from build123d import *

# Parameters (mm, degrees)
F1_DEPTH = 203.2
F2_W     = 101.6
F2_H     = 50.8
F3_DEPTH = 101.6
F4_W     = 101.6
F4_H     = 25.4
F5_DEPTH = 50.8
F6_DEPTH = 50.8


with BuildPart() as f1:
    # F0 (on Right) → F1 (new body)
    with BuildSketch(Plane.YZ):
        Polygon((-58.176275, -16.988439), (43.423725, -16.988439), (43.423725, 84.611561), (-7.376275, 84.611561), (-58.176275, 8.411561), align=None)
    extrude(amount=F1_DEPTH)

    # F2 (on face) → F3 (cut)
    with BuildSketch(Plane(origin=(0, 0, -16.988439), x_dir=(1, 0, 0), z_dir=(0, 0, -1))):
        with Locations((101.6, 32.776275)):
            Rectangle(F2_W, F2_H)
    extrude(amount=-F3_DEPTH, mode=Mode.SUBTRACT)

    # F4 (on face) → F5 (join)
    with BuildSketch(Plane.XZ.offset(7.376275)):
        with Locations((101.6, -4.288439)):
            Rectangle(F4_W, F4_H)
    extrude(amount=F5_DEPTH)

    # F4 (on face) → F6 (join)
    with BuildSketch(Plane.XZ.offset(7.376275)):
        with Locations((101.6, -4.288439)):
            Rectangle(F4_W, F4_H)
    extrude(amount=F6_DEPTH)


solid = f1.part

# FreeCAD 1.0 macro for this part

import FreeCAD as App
import Part
import Sketcher
from FreeCAD import Vector
Q = App.Units.Quantity

doc = App.newDocument("Part")
params = doc.addObject("Spreadsheet::Sheet", "Params")
for row, (alias, value) in enumerate([
    ("sketch1_width", "4 in"),
    ("sketch1_width2", "2 in"),
    ("sketch1_height", "1 in"),
    ("pad1_length", "8 in"),
    ("sketch2_width", "4 in"),
    ("sketch2_height", "2 in"),
    ("pocket1_length", "4 in"),
    ("sketch3_width", "4 in"),
    ("sketch3_height", "1 in"),
    ("pad2_length", "2 in"),
    ("sketch4_width", "4 in"),
    ("sketch4_height", "1 in"),
    ("pad3_length", "2 in"),
], start=1):
    params.set(f"A{row}", alias)
    params.set(f"B{row}", "=" + value)
    params.setAlias(f"B{row}", alias)

body = doc.addObject("PartDesign::Body", "Body")

# Sketch on YZ plane
sketch1 = body.newObject("Sketcher::SketchObject", "Sketch")
sketch1.AttachmentSupport = (doc.getObject("YZ_Plane"), [""])
sketch1.MapMode = "FlatFace"
sketch1.addGeometry([
    Part.LineSegment(Vector(-58, -17, 0), Vector(43, -17, 0)),  # 0
    Part.LineSegment(Vector(43, -17, 0), Vector(43, 85, 0)),  # 1
    Part.LineSegment(Vector(43, 85, 0), Vector(-7, 85, 0)),  # 2
    Part.LineSegment(Vector(-7, 85, 0), Vector(-58, 8, 0)),  # 3
    Part.LineSegment(Vector(-58, 8, 0), Vector(-58, -17, 0)),  # 4
], False)
sketch1.addConstraint([
    Sketcher.Constraint("Coincident", 0, 2, 1, 1),
    Sketcher.Constraint("Coincident", 1, 2, 2, 1),
    Sketcher.Constraint("Coincident", 2, 2, 3, 1),
    Sketcher.Constraint("Coincident", 3, 2, 4, 1),
    Sketcher.Constraint("Coincident", 4, 2, 0, 1),
    Sketcher.Constraint("Horizontal", 0),
    Sketcher.Constraint("Vertical", 1),
    Sketcher.Constraint("Horizontal", 2),
    Sketcher.Constraint("Vertical", 4),
    Sketcher.Constraint("Equal", 0, 1),
    Sketcher.Constraint("DistanceX", 0, 1, 0, 2, Q("4 in")),
    Sketcher.Constraint("DistanceX", 2, 2, 2, 1, Q("2 in")),
    Sketcher.Constraint("DistanceY", 4, 2, 4, 1, Q("1 in")),
    Sketcher.Constraint("DistanceY", 0, 2, -1, 1, 16.988439),
    Sketcher.Constraint("DistanceX", -1, 1, 0, 2, 43.423725),
])
sketch1.setExpression("Constraints[10]", "Params.sketch1_width")
sketch1.setExpression("Constraints[11]", "Params.sketch1_width2")
sketch1.setExpression("Constraints[12]", "Params.sketch1_height")
pad1 = body.newObject("PartDesign::Pad", "Pad")
pad1.Profile = sketch1
pad1.setExpression("Length", "Params.pad1_length")

# Sketch on XY plane
sketch2 = body.newObject("Sketcher::SketchObject", "Sketch001")
sketch2.AttachmentSupport = (doc.getObject("XY_Plane"), [""])
sketch2.MapMode = "FlatFace"
sketch2.AttachmentOffset = App.Placement(Vector(0, 0, -16.988439), App.Rotation())
sketch2.addGeometry([
    Part.LineSegment(Vector(51, -58, 0), Vector(51, -7, 0)),
    Part.LineSegment(Vector(51, -7, 0), Vector(152, -7, 0)),
    Part.LineSegment(Vector(152, -7, 0), Vector(152, -58, 0)),
    Part.LineSegment(Vector(152, -58, 0), Vector(51, -58, 0)),
], False)
sketch2.addConstraint([
    Sketcher.Constraint("Coincident", 0, 2, 1, 1),
    Sketcher.Constraint("Coincident", 1, 2, 2, 1),
    Sketcher.Constraint("Coincident", 2, 2, 3, 1),
    Sketcher.Constraint("Coincident", 3, 2, 0, 1),
    Sketcher.Constraint("Vertical", 0),
    Sketcher.Constraint("Horizontal", 1),
    Sketcher.Constraint("Vertical", 2),
    Sketcher.Constraint("Horizontal", 3),
    Sketcher.Constraint("DistanceX", 1, 1, 1, 2, Q("4 in")),
    Sketcher.Constraint("DistanceY", 0, 1, 0, 2, Q("2 in")),
    Sketcher.Constraint("DistanceX", -1, 1, 0, 2, Q("2 in")),
    Sketcher.Constraint("DistanceY", 0, 2, -1, 1, 7.376275),
])
sketch2.setExpression("Constraints[8]", "Params.sketch2_width")
sketch2.setExpression("Constraints[9]", "Params.sketch2_height")
pocket1 = body.newObject("PartDesign::Pocket", "Pocket")
pocket1.Profile = sketch2
pocket1.setExpression("Length", "Params.pocket1_length")
pocket1.Reversed = True

# Sketch on XZ plane
sketch3 = body.newObject("Sketcher::SketchObject", "Sketch002")
sketch3.AttachmentSupport = (doc.getObject("XZ_Plane"), [""])
sketch3.MapMode = "FlatFace"
sketch3.AttachmentOffset = App.Placement(Vector(0, 0, 7.376275), App.Rotation())
sketch3.addGeometry([
    Part.LineSegment(Vector(51, 8, 0), Vector(51, -17, 0)),
    Part.LineSegment(Vector(51, -17, 0), Vector(152, -17, 0)),
    Part.LineSegment(Vector(152, -17, 0), Vector(152, 8, 0)),
    Part.LineSegment(Vector(152, 8, 0), Vector(51, 8, 0)),
], False)
sketch3.addConstraint([
    Sketcher.Constraint("Coincident", 0, 2, 1, 1),
    Sketcher.Constraint("Coincident", 1, 2, 2, 1),
    Sketcher.Constraint("Coincident", 2, 2, 3, 1),
    Sketcher.Constraint("Coincident", 3, 2, 0, 1),
    Sketcher.Constraint("Vertical", 0),
    Sketcher.Constraint("Horizontal", 1),
    Sketcher.Constraint("Vertical", 2),
    Sketcher.Constraint("Horizontal", 3),
    Sketcher.Constraint("DistanceX", 1, 1, 1, 2, Q("4 in")),
    Sketcher.Constraint("DistanceY", 0, 2, 0, 1, Q("1 in")),
    Sketcher.Constraint("DistanceX", -1, 1, 0, 2, Q("2 in")),
    Sketcher.Constraint("DistanceY", 0, 2, -1, 1, 16.988439),
])
sketch3.setExpression("Constraints[8]", "Params.sketch3_width")
sketch3.setExpression("Constraints[9]", "Params.sketch3_height")
pad2 = body.newObject("PartDesign::Pad", "Pad001")
pad2.Profile = sketch3
pad2.setExpression("Length", "Params.pad2_length")

# Sketch on XZ plane
sketch4 = body.newObject("Sketcher::SketchObject", "Sketch003")
sketch4.AttachmentSupport = (doc.getObject("XZ_Plane"), [""])
sketch4.MapMode = "FlatFace"
sketch4.AttachmentOffset = App.Placement(Vector(0, 0, 7.376275), App.Rotation())
sketch4.addGeometry([
    Part.LineSegment(Vector(51, 8, 0), Vector(51, -17, 0)),
    Part.LineSegment(Vector(51, -17, 0), Vector(152, -17, 0)),
    Part.LineSegment(Vector(152, -17, 0), Vector(152, 8, 0)),
    Part.LineSegment(Vector(152, 8, 0), Vector(51, 8, 0)),
], False)
sketch4.addConstraint([
    Sketcher.Constraint("Coincident", 0, 2, 1, 1),
    Sketcher.Constraint("Coincident", 1, 2, 2, 1),
    Sketcher.Constraint("Coincident", 2, 2, 3, 1),
    Sketcher.Constraint("Coincident", 3, 2, 0, 1),
    Sketcher.Constraint("Vertical", 0),
    Sketcher.Constraint("Horizontal", 1),
    Sketcher.Constraint("Vertical", 2),
    Sketcher.Constraint("Horizontal", 3),
    Sketcher.Constraint("DistanceX", 1, 1, 1, 2, Q("4 in")),
    Sketcher.Constraint("DistanceY", 0, 2, 0, 1, Q("1 in")),
    Sketcher.Constraint("DistanceX", -1, 1, 0, 2, Q("2 in")),
    Sketcher.Constraint("DistanceY", 0, 2, -1, 1, 16.988439),
])
sketch4.setExpression("Constraints[8]", "Params.sketch4_width")
sketch4.setExpression("Constraints[9]", "Params.sketch4_height")
pad3 = body.newObject("PartDesign::Pad", "Pad002")
pad3.Profile = sketch4
pad3.setExpression("Length", "Params.pad3_length")

doc.recompute()
